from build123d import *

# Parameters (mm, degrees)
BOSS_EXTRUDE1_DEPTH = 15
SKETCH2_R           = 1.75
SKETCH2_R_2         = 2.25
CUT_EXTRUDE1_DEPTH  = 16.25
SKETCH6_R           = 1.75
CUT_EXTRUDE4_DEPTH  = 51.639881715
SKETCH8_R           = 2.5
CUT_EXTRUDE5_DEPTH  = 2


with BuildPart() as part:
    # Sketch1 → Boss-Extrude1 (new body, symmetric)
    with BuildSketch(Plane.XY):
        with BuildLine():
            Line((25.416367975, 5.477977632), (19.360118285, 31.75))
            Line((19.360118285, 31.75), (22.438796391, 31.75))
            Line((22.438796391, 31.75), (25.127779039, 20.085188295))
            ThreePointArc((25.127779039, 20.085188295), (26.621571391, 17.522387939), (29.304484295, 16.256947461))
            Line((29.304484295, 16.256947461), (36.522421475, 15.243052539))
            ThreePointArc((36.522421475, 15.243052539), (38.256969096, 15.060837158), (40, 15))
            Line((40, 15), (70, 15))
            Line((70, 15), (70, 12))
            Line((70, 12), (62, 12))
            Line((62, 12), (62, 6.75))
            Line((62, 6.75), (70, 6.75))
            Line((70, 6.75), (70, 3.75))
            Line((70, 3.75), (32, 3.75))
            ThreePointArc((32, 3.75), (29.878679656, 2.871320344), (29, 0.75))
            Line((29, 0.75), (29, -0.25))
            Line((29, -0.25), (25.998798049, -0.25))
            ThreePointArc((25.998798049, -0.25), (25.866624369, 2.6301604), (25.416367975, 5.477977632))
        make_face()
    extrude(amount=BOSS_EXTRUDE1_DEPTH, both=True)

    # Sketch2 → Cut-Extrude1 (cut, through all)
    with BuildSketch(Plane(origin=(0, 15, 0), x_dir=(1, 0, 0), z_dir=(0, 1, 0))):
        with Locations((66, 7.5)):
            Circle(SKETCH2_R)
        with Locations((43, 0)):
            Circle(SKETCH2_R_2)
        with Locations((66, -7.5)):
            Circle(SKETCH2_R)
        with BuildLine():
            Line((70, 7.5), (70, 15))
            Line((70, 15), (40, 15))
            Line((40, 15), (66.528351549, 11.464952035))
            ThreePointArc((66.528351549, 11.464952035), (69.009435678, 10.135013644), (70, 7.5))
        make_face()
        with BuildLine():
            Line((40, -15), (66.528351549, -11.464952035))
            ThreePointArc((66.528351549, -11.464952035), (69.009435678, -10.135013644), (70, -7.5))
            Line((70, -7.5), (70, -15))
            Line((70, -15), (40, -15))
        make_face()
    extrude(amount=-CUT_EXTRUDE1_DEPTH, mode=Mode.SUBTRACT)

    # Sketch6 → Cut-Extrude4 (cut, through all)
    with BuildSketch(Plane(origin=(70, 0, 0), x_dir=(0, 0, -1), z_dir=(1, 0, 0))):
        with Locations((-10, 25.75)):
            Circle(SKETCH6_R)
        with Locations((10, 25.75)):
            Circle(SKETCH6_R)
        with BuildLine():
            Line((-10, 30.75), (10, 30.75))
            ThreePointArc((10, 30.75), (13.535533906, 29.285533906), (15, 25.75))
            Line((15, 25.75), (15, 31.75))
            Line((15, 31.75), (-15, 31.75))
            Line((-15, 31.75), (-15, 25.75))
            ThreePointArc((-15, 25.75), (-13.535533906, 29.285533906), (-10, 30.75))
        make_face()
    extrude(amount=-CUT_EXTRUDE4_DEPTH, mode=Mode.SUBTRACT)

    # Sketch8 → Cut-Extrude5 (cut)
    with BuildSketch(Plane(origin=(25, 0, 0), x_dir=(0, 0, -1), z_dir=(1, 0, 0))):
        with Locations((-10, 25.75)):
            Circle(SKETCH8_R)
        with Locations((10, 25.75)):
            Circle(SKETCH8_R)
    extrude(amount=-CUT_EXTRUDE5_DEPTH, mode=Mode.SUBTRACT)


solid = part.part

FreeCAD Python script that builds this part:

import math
import FreeCAD as App
import Part
import Sketcher
Q = App.Units.Quantity

doc = App.newDocument("Part")
body = doc.addObject("PartDesign::Body", "Body")

# Sketch on XY plane
sketch1 = body.newObject("Sketcher::SketchObject", "Sketch")
sketch1.AttachmentSupport = (doc.getObject("XY_Plane"), [""])
sketch1.MapMode = "FlatFace"
sketch1.addGeometry([
    Part.LineSegment(App.Vector(19.360118, 31.75, 0), App.Vector(25.416368, 5.477978, 0)),  # 0
    Part.ArcOfCircle(Part.Circle(App.Vector(0, 0, 0), App.Vector(0, 0, 1), 26), math.radians(-0.550929), math.radians(12.162876)),  # 1
    Part.LineSegment(App.Vector(25.998798, -0.25, 0), App.Vector(29, -0.25, 0)),  # 2
    Part.LineSegment(App.Vector(29, -0.25, 0), App.Vector(29, 0.75, 0)),  # 3
    Part.ArcOfCircle(Part.Circle(App.Vector(32, 0.75, 0), App.Vector(0, 0, 1), 3), math.radians(90), math.radians(180)),  # 4
    Part.LineSegment(App.Vector(32, 3.75, 0), App.Vector(70, 3.75, 0)),  # 5
    Part.LineSegment(App.Vector(70, 3.75, 0), App.Vector(70, 6.75, 0)),  # 6
    Part.LineSegment(App.Vector(70, 6.75, 0), App.Vector(62, 6.75, 0)),  # 7
    Part.LineSegment(App.Vector(62, 6.75, 0), App.Vector(62, 12, 0)),  # 8
    Part.LineSegment(App.Vector(62, 12, 0), App.Vector(70, 12, 0)),  # 9
    Part.LineSegment(App.Vector(70, 12, 0), App.Vector(70, 15, 0)),  # 10
    Part.LineSegment(App.Vector(70, 15, 0), App.Vector(40, 15, 0)),  # 11
    Part.ArcOfCircle(Part.Circle(App.Vector(40, 40, 0), App.Vector(0, 0, 1), 25), math.radians(-97.995952), math.radians(-90)),  # 12
    Part.LineSegment(App.Vector(36.522421, 15.243053, 0), App.Vector(29.304484, 16.256947, 0)),  # 13
    Part.ArcOfCircle(Part.Circle(App.Vector(30, 21.208337, 0), App.Vector(0, 0, 1), 5), math.radians(-167.018894), math.radians(-97.995952)),  # 14
    Part.LineSegment(App.Vector(25.127779, 20.085188, 0), App.Vector(22.438796, 31.75, 0)),  # 15
    Part.LineSegment(App.Vector(22.438796, 31.75, 0), App.Vector(19.360118, 31.75, 0)),  # 16
], False)
sketch1.addConstraint([
    Sketcher.Constraint("Coincident", 0, 2, 1, 2),
    Sketcher.Constraint("Coincident", 1, 1, 2, 1),
    Sketcher.Constraint("Coincident", 2, 2, 3, 1),
    Sketcher.Constraint("Coincident", 3, 2, 4, 2),
    Sketcher.Constraint("Coincident", 4, 1, 5, 1),
    Sketcher.Constraint("Coincident", 5, 2, 6, 1),
    Sketcher.Constraint("Coincident", 6, 2, 7, 1),
    Sketcher.Constraint("Coincident", 7, 2, 8, 1),
    Sketcher.Constraint("Coincident", 8, 2, 9, 1),
    Sketcher.Constraint("Coincident", 9, 2, 10, 1),
    Sketcher.Constraint("Coincident", 10, 2, 11, 1),
    Sketcher.Constraint("Coincident", 11, 2, 12, 2),
    Sketcher.Constraint("Coincident", 12, 1, 13, 1),
    Sketcher.Constraint("Coincident", 13, 2, 14, 2),
    Sketcher.Constraint("Coincident", 14, 1, 15, 1),
    Sketcher.Constraint("Coincident", 15, 2, 16, 1),
    Sketcher.Constraint("Coincident", 16, 2, 0, 1),
    Sketcher.Constraint("Horizontal", 2),
    Sketcher.Constraint("Vertical", 3),
    Sketcher.Constraint("Horizontal", 5),
    Sketcher.Constraint("Vertical", 6),
    Sketcher.Constraint("Horizontal", 7),
    Sketcher.Constraint("Vertical", 8),
    Sketcher.Constraint("Horizontal", 9),
    Sketcher.Constraint("Vertical", 10),
    Sketcher.Constraint("Horizontal", 11),
    Sketcher.Constraint("Horizontal", 16),
    Sketcher.Constraint("Coincident", 1, 3, -1, 1),
    Sketcher.Constraint("Radius", 1, Q("26 mm")),
    Sketcher.Constraint("Radius", 4, Q("3 mm")),
    Sketcher.Constraint("Radius", 12, Q("25 mm")),
    Sketcher.Constraint("Radius", 14, Q("5 mm")),
    Sketcher.Constraint("DistanceX", 5, 1, 5, 2, Q("38 mm")),
    Sketcher.Constraint("DistanceX", 7, 2, 7, 1, Q("8 mm")),
    Sketcher.Constraint("DistanceX", 9, 1, 9, 2, Q("8 mm")),
    Sketcher.Constraint("DistanceX", 11, 2, 11, 1, Q("30 mm")),
    Sketcher.Constraint("DistanceY", 3, 1, 3, 2, Q("1 mm")),
    Sketcher.Constraint("DistanceY", 6, 1, 6, 2, Q("3 mm")),
    Sketcher.Constraint("DistanceY", 10, 1, 10, 2, Q("3 mm")),
    Sketcher.Constraint("DistanceX", -1, 1, 4, 3, Q("32 mm")),
    Sketcher.Constraint("DistanceX", -1, 1, 12, 3, Q("40 mm")),
    Sketcher.Constraint("DistanceY", -1, 1, 12, 3, Q("40 mm")),
    Sketcher.Constraint("DistanceX", -1, 1, 14, 3, Q("30 mm")),
    Sketcher.Constraint("DistanceX", -1, 1, 4, 1, Q("32 mm")),
    Sketcher.Constraint("DistanceY", 1, 1, 4, 3, Q("1 mm")),
    Sketcher.Constraint("DistanceY", 8, 1, 8, 2, Q("5.25 mm")),
    Sketcher.Constraint("DistanceY", -1, 1, 15, 2, Q("31.75 mm")),
    Sketcher.Constraint("Distance", 13, Q("7.2888 mm")),
    Sketcher.Constraint("DistanceX", 16, 2, 16, 1, Q("3.078678 mm")),
    Sketcher.Constraint("DistanceX", -1, 1, 12, 1, Q("36.522421 mm")),
    Sketcher.Constraint("DistanceX", -1, 1, 14, 1, Q("25.127779 mm")),
    Sketcher.Constraint("DistanceY", -1, 1, 14, 1, Q("20.085188 mm")),
    Sketcher.Constraint("DistanceX", -1, 1, 16, 2, Q("19.360118 mm")),
    Sketcher.Constraint("DistanceY", 0, 2, 14, 3, Q("15.730359 mm")),
])
pad1 = body.newObject("PartDesign::Pad", "Pad")
pad1.Profile = sketch1
pad1.Length = 30
pad1.Midplane = True

# Sketch on XZ plane
sketch2 = body.newObject("Sketcher::SketchObject", "Sketch001")
sketch2.AttachmentSupport = (doc.getObject("XZ_Plane"), [""])
sketch2.MapMode = "FlatFace"
sketch2.AttachmentOffset = App.Placement(App.Vector(0, 0, -15), App.Rotation())
sketch2.addGeometry([
    Part.Circle(App.Vector(66, -7.5, 0), App.Vector(0, 0, 1), 1.8),  # 0
    Part.Circle(App.Vector(43, 0, 0), App.Vector(0, 0, 1), 2.2),  # 1
    Part.Circle(App.Vector(66, 7.5, 0), App.Vector(0, 0, 1), 1.8),  # 2
    Part.LineSegment(App.Vector(70, -7.5, 0), App.Vector(70, -15, 0)),  # 3
    Part.LineSegment(App.Vector(70, -15, 0), App.Vector(40, -15, 0)),  # 4
    Part.LineSegment(App.Vector(40, -15, 0), App.Vector(66.5, -11.5, 0)),  # 5
    Part.ArcOfCircle(Part.Circle(App.Vector(66, -7.5, 0), App.Vector(0, 0, 1), 4), math.radians(-82), math.radians(0)),  # 6
    Part.LineSegment(App.Vector(66.5, 11.5, 0), App.Vector(40, 15, 0)),  # 7
    Part.LineSegment(App.Vector(40, 15, 0), App.Vector(70, 15, 0)),  # 8
    Part.LineSegment(App.Vector(70, 15, 0), App.Vector(70, 7.5, 0)),  # 9
    Part.ArcOfCircle(Part.Circle(App.Vector(66, 7.5, 0), App.Vector(0, 0, 1), 4), math.radians(0), math.radians(82)),  # 10
], False)
sketch2.addConstraint([
    Sketcher.Constraint("Coincident", 3, 2, 4, 1),
    Sketcher.Constraint("Coincident", 4, 2, 5, 1),
    Sketcher.Constraint("Tangent", 5, 2, 6, 1),
    Sketcher.Constraint("Tangent", 6, 2, 3, 1),
    Sketcher.Constraint("Coincident", 7, 2, 8, 1),
    Sketcher.Constraint("Coincident", 8, 2, 9, 1),
    Sketcher.Constraint("Tangent", 9, 2, 10, 1),
    Sketcher.Constraint("Tangent", 10, 2, 7, 1),
    Sketcher.Constraint("Vertical", 3),
    Sketcher.Constraint("Horizontal", 4),
    Sketcher.Constraint("Horizontal", 8),
    Sketcher.Constraint("Vertical", 9),
    Sketcher.Constraint("Coincident", 6, 3, 0, 3),
    Sketcher.Constraint("Coincident", 10, 3, 2, 3),
    Sketcher.Constraint("Equal", 0, 2),
    Sketcher.Constraint("Equal", 6, 10),
    Sketcher.Constraint("Symmetric", 0, 3, 2, 3, -1),
    Sketcher.Constraint("Symmetric", 4, 2, 7, 2, -1),
    Sketcher.Constraint("PointOnObject", 1, 3, -1),
    Sketcher.Constraint("Radius", 6, Q("4 mm")),
    Sketcher.Constraint("Diameter", 0, Q("3.5 mm")),
    Sketcher.Constraint("Diameter", 1, Q("4.5 mm")),
    Sketcher.Constraint("DistanceX", 4, 2, 4, 1, Q("30 mm")),
    Sketcher.Constraint("DistanceY", 3, 2, 3, 1, Q("7.5 mm")),
    Sketcher.Constraint("DistanceX", -1, 1, 0, 3, Q("66 mm")),
    Sketcher.Constraint("DistanceX", -1, 1, 1, 3, Q("43 mm")),
    Sketcher.Constraint("DistanceY", 3, 2, -1, 1, Q("15 mm")),
])
pocket1 = body.newObject("PartDesign::Pocket", "Pocket")
pocket1.Profile = sketch2
pocket1.Type = "ThroughAll"
pocket1.Reversed = True

# Sketch on YZ plane
sketch3 = body.newObject("Sketcher::SketchObject", "Sketch002")
sketch3.AttachmentSupport = (doc.getObject("YZ_Plane"), [""])
sketch3.MapMode = "FlatFace"
sketch3.AttachmentOffset = App.Placement(App.Vector(0, 0, 70), App.Rotation())
sketch3.addGeometry([
    Part.Circle(App.Vector(25.8, 10, 0), App.Vector(0, 0, 1), 1.8),  # 0
    Part.Circle(App.Vector(25.8, -10, 0), App.Vector(0, 0, 1), 1.8),  # 1
    Part.LineSegment(App.Vector(30.8, 10, 0), App.Vector(30.8, -10, 0)),  # 2
    Part.ArcOfCircle(Part.Circle(App.Vector(25.8, -10, 0), App.Vector(0, 0, 1), 5), math.radians(-90), math.radians(0)),  # 3
    Part.LineSegment(App.Vector(25.8, -15, 0), App.Vector(31.8, -15, 0)),  # 4
    Part.LineSegment(App.Vector(31.8, -15, 0), App.Vector(31.8, 15, 0)),  # 5
    Part.LineSegment(App.Vector(31.8, 15, 0), App.Vector(25.8, 15, 0)),  # 6
    Part.ArcOfCircle(Part.Circle(App.Vector(25.8, 10, 0), App.Vector(0, 0, 1), 5), math.radians(0), math.radians(90)),  # 7
], False)
sketch3.addConstraint([
    Sketcher.Constraint("Tangent", 2, 2, 3, 2),
    Sketcher.Constraint("Tangent", 3, 1, 4, 1),
    Sketcher.Constraint("Coincident", 4, 2, 5, 1),
    Sketcher.Constraint("Coincident", 5, 2, 6, 1),
    Sketcher.Constraint("Tangent", 6, 2, 7, 2),
    Sketcher.Constraint("Tangent", 7, 1, 2, 1),
    Sketcher.Constraint("Vertical", 2),
    Sketcher.Constraint("Horizontal", 4),
    Sketcher.Constraint("Vertical", 5),
    Sketcher.Constraint("Horizontal", 6),
    Sketcher.Constraint("Coincident", 3, 3, 1, 3),
    Sketcher.Constraint("Coincident", 7, 3, 0, 3),
    Sketcher.Constraint("Equal", 0, 1),
    Sketcher.Constraint("Equal", 3, 7),
    Sketcher.Constraint("Radius", 3, Q("5 mm")),
    Sketcher.Constraint("Diameter", 0, Q("3.5 mm")),
    Sketcher.Constraint("DistanceX", 4, 1, 4, 2, Q("6 mm")),
    Sketcher.Constraint("DistanceY", 2, 2, 2, 1, Q("20 mm")),
    Sketcher.Constraint("DistanceY", -1, 1, 0, 3, Q("10 mm")),
    Sketcher.Constraint("DistanceX", -1, 1, 0, 3, Q("25.75 mm")),
])
pocket2 = body.newObject("PartDesign::Pocket", "Pocket001")
pocket2.Profile = sketch3
pocket2.Type = "ThroughAll"

# Sketch on YZ plane
sketch4 = body.newObject("Sketcher::SketchObject", "Sketch003")
sketch4.AttachmentSupport = (doc.getObject("YZ_Plane"), [""])
sketch4.MapMode = "FlatFace"
sketch4.AttachmentOffset = App.Placement(App.Vector(0, 0, 25), App.Rotation())
sketch4.addGeometry([
    Part.Circle(App.Vector(25.8, 10, 0), App.Vector(0, 0, 1), 2.5),
    Part.Circle(App.Vector(25.8, -10, 0), App.Vector(0, 0, 1), 2.5),
], False)
sketch4.addConstraint([
    Sketcher.Constraint("Equal", 0, 1),
    Sketcher.Constraint("Symmetric", 0, 3, 1, 3, -1),
    Sketcher.Constraint("Diameter", 0, Q("5 mm")),
    Sketcher.Constraint("DistanceY", -1, 1, 0, 3, Q("10 mm")),
    Sketcher.Constraint("DistanceX", -1, 1, 0, 3, Q("25.75 mm")),
])
pocket3 = body.newObject("PartDesign::Pocket", "Pocket002")
pocket3.Profile = sketch4
pocket3.Length = 2

doc.recompute()
